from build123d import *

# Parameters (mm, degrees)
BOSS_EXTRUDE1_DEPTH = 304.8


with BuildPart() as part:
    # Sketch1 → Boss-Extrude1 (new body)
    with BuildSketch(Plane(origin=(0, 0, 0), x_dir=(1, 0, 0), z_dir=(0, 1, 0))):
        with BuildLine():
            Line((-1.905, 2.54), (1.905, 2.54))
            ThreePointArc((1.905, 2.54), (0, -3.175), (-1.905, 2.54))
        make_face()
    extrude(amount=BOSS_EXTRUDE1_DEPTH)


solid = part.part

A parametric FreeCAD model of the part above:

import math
import FreeCAD as App
import Part
import Sketcher
Q = App.Units.Quantity

doc = App.newDocument("Part")
body = doc.addObject("PartDesign::Body", "Body")

sketch1 = body.newObject("Sketcher::SketchObject", "Sketch")
sketch1.AttachmentSupport = (doc.getObject("XZ_Plane"), [""])
sketch1.MapMode = "FlatFace"
sketch1.addGeometry([
    Part.LineSegment(App.Vector(1.9, -2.5, 0), App.Vector(-1.9, -2.5, 0)),
    Part.ArcOfCircle(Part.Circle(App.Vector(0, 0, 0), App.Vector(0, 0, 1), 3.2), math.radians(-53), math.radians(233)),
], False)
sketch1.addConstraint([
    Sketcher.Constraint("Coincident", 0, 1, 1, 1),
    Sketcher.Constraint("Coincident", 1, 2, 0, 2),
    Sketcher.Constraint("Horizontal", 0),
    Sketcher.Constraint("Coincident", 1, 3, -1, 1),
    Sketcher.Constraint("Radius", 1, Q("0.125 in")),
    Sketcher.Constraint("DistanceX", 0, 2, 0, 1, Q("0.15 in")),
])
pad1 = body.newObject("PartDesign::Pad", "Pad")
pad1.Profile = sketch1
pad1.Length = Q("12 in")
pad1.Reversed = True

doc.recompute()
